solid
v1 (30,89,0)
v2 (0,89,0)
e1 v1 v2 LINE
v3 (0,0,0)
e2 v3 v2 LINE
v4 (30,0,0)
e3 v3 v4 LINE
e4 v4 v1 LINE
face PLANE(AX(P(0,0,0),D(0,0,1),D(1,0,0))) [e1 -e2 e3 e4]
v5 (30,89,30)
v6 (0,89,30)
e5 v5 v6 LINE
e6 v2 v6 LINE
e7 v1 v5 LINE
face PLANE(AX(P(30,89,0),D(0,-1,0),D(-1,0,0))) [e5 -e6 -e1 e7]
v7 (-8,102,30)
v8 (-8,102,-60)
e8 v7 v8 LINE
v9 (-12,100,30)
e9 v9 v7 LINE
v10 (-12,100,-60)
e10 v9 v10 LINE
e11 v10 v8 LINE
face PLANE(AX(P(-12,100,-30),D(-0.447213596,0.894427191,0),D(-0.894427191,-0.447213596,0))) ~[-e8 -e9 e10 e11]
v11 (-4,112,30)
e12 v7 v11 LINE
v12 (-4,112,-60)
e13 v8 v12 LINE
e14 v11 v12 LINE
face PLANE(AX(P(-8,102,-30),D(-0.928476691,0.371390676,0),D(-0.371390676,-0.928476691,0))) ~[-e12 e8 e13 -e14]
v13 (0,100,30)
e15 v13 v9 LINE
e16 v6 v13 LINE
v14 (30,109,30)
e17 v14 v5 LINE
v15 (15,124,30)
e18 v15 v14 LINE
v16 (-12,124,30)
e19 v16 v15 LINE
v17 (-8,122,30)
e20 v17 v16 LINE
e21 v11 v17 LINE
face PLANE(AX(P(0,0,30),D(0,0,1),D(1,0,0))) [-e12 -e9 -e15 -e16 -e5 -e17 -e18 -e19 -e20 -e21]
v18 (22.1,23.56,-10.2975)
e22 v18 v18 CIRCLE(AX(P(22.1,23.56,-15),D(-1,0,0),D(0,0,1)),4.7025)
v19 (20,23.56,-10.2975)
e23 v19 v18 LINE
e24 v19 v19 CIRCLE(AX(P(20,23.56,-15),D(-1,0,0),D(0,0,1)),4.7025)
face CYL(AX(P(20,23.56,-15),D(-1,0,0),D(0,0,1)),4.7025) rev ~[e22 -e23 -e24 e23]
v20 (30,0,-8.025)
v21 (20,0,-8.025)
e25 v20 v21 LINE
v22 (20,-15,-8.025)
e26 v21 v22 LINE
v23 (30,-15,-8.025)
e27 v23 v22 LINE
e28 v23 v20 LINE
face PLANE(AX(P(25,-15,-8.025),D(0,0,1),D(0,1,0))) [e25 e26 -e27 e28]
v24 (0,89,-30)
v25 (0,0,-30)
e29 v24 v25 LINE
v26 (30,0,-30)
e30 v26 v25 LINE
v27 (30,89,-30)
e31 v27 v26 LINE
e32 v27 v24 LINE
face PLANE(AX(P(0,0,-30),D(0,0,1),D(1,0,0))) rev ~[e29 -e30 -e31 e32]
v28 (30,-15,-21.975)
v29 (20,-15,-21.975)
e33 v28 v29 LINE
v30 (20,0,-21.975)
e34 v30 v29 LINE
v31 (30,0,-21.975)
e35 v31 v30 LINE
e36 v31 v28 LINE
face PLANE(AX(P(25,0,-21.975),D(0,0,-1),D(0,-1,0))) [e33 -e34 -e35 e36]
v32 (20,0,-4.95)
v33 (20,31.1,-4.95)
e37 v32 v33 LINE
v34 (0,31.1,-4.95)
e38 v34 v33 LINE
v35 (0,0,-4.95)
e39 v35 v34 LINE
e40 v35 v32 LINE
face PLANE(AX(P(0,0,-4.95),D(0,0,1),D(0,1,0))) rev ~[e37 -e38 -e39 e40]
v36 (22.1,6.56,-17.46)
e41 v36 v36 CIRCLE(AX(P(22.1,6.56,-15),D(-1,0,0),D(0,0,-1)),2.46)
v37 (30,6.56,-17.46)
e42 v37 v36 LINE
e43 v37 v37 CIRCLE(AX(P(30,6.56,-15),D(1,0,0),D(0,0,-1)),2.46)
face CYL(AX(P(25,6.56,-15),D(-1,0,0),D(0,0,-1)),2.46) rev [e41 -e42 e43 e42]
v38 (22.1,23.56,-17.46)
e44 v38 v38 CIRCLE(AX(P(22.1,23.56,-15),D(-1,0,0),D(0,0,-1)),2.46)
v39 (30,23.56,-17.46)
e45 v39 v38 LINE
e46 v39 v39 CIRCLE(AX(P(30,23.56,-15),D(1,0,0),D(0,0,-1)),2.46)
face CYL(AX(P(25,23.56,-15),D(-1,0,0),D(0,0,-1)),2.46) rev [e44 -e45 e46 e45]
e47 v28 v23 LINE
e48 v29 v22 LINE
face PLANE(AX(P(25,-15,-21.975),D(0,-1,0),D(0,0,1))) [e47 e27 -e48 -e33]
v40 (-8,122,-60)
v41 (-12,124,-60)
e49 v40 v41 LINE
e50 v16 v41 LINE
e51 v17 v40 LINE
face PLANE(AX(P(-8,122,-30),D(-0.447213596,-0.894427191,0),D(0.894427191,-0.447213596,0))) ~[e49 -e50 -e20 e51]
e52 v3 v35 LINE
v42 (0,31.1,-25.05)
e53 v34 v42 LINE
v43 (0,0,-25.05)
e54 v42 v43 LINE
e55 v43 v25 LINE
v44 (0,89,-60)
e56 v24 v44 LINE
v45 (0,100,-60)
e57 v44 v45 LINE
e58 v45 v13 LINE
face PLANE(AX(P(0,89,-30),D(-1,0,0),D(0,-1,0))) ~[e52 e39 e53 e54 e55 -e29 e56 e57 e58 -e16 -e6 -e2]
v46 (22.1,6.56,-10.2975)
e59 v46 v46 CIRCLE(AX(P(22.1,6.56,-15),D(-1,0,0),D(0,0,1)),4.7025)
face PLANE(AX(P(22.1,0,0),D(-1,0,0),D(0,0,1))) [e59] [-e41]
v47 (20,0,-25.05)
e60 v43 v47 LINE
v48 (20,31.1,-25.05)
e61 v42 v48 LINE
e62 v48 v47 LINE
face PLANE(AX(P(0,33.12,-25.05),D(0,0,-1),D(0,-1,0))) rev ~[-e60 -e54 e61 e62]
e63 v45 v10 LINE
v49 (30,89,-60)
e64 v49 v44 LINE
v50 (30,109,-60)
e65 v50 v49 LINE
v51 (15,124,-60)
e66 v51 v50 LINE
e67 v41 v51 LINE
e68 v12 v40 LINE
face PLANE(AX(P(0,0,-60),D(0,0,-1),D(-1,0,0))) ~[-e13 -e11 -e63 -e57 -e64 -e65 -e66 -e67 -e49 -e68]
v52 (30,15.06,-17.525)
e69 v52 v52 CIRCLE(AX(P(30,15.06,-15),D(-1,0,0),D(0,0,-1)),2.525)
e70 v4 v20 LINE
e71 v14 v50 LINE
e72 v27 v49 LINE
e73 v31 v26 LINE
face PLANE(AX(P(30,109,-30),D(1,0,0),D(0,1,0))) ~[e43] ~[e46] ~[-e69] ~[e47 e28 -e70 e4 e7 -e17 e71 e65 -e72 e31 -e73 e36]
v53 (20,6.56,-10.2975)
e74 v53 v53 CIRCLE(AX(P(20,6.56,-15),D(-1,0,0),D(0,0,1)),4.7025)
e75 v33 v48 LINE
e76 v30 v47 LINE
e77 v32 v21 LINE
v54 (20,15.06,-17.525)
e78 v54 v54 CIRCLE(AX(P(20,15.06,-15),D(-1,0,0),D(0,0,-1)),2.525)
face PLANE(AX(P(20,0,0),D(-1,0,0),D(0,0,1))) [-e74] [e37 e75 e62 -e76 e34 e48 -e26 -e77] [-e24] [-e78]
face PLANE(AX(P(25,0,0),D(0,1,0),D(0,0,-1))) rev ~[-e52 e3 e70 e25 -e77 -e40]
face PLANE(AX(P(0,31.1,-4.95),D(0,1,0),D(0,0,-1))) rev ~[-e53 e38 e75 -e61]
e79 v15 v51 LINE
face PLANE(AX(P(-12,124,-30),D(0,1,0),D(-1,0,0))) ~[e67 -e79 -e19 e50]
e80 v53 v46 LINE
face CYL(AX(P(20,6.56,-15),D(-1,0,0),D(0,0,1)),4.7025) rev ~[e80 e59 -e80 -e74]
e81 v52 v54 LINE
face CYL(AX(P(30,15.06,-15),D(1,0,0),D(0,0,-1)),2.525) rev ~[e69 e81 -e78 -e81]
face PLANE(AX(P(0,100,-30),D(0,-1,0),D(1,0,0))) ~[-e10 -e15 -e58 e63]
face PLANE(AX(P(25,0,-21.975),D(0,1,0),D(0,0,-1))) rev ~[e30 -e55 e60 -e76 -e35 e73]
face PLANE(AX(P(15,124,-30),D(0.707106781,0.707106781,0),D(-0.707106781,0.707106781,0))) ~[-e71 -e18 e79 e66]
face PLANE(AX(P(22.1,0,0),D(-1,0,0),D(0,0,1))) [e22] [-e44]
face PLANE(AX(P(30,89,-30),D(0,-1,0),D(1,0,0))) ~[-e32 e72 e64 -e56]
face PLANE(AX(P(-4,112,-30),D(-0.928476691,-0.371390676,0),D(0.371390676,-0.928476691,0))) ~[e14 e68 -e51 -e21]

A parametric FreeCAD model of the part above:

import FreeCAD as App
import Part
import Sketcher

V = App.Vector
Q = App.Units.Quantity

doc = App.newDocument("Part")
body = doc.addObject("PartDesign::Body", "Body")

sketch1 = doc.addObject("Sketcher::SketchObject", "Sketch")
body.addObject(sketch1)
sketch1.AttachmentSupport = (doc.XY_Plane, [""])
sketch1.MapMode = "FlatFace"
sketch1.addGeometry([
    Part.LineSegment(V(0, 40, 0), V(0, 0, 0)),
    Part.LineSegment(V(0, 0, 0), V(25, 0, 0)),
    Part.LineSegment(V(25, 0, 0), V(25, 40, 0)),
    Part.LineSegment(V(25, 40, 0), V(0, 40, 0)),
], False)
sketch1.addConstraint([
    Sketcher.Constraint("Coincident", 0, 2, 1, 1),
    Sketcher.Constraint("Coincident", 1, 2, 2, 1),
    Sketcher.Constraint("Coincident", 2, 2, 3, 1),
    Sketcher.Constraint("Coincident", 3, 2, 0, 1),
    Sketcher.Constraint("Vertical", 0),
    Sketcher.Constraint("Horizontal", 1),
    Sketcher.Constraint("Vertical", 2),
    Sketcher.Constraint("Horizontal", 3),
    Sketcher.Constraint("Coincident", 0, 2, -1, 1),
    Sketcher.Constraint("DistanceX", 1, 1, 1, 2, 25.0),
    Sketcher.Constraint("DistanceY", 0, 2, 0, 1, 40.0),
])
pad1 = doc.addObject("PartDesign::Pad", "Pad")
body.addObject(pad1)
pad1.Profile = sketch1
pad1.Length = 30
pad1.Reversed = True

sketch2 = doc.addObject("Sketcher::SketchObject", "Sketch001")
body.addObject(sketch2)
sketch2.AttachmentSupport = (doc.YZ_Plane, [""])
sketch2.MapMode = "FlatFace"
sketch2.AttachmentOffset = App.Placement(V(0, 0, 25), App.Rotation())
sketch2.addGeometry(Part.Circle(V(6.6, -15, 0), V(0, 0, 1), 2.5), False)
sketch2.addConstraint([
    Sketcher.Constraint("Diameter", 0, 4.92),
    Sketcher.Constraint("DistanceY", 0, 3, -1, 1, 15.0),
    Sketcher.Constraint("DistanceX", -1, 1, 0, 3, 6.56),
])
pocket1 = doc.addObject("PartDesign::Pocket", "Pocket")
body.addObject(pocket1)
pocket1.Profile = sketch2
pocket1.Length = 30

sketch3 = doc.addObject("Sketcher::SketchObject", "Sketch002")
body.addObject(sketch3)
sketch3.AttachmentSupport = (doc.YZ_Plane, [""])
sketch3.MapMode = "FlatFace"
sketch3.addGeometry([
    Part.LineSegment(V(0, -25, 0), V(0, -5, 0)),
    Part.LineSegment(V(0, -5, 0), V(33, -5, 0)),
    Part.LineSegment(V(33, -5, 0), V(33, -25, 0)),
    Part.LineSegment(V(33, -25, 0), V(0, -25, 0)),
], False)
sketch3.addConstraint([
    Sketcher.Constraint("Coincident", 0, 2, 1, 1),
    Sketcher.Constraint("Coincident", 1, 2, 2, 1),
    Sketcher.Constraint("Coincident", 2, 2, 3, 1),
    Sketcher.Constraint("Coincident", 3, 2, 0, 1),
    Sketcher.Constraint("Vertical", 0),
    Sketcher.Constraint("Horizontal", 1),
    Sketcher.Constraint("Vertical", 2),
    Sketcher.Constraint("Horizontal", 3),
    Sketcher.Constraint("PointOnObject", 0, 2, -2),
    Sketcher.Constraint("DistanceY", 0, 1, 0, 2, 20.1),
    Sketcher.Constraint("DistanceX", 1, 1, 1, 2, 33.12),
    Sketcher.Constraint("DistanceY", 0, 2, -1, 1, 4.95),
])
pocket2 = doc.addObject("PartDesign::Pocket", "Pocket001")
body.addObject(pocket2)
pocket2.Profile = sketch3
pocket2.Length = 20
pocket2.Reversed = True

sketch4 = doc.addObject("Sketcher::SketchObject", "Sketch003")
body.addObject(sketch4)
sketch4.AttachmentSupport = (doc.XZ_Plane, [""])
sketch4.MapMode = "FlatFace"
sketch4.addGeometry([
    Part.LineSegment(V(25, -8, 0), V(20, -8, 0)),
    Part.LineSegment(V(20, -8, 0), V(20, -22, 0)),
    Part.LineSegment(V(20, -22, 0), V(25, -22, 0)),
    Part.LineSegment(V(25, -22, 0), V(25, -8, 0)),
], False)
sketch4.addConstraint([
    Sketcher.Constraint("Coincident", 0, 2, 1, 1),
    Sketcher.Constraint("Coincident", 1, 2, 2, 1),
    Sketcher.Constraint("Coincident", 2, 2, 3, 1),
    Sketcher.Constraint("Coincident", 3, 2, 0, 1),
    Sketcher.Constraint("Horizontal", 0),
    Sketcher.Constraint("Vertical", 1),
    Sketcher.Constraint("Horizontal", 2),
    Sketcher.Constraint("Vertical", 3),
    Sketcher.Constraint("DistanceY", 1, 2, 1, 1, 13.95),
    Sketcher.Constraint("DistanceX", 0, 2, 0, 1, 5.0),
    Sketcher.Constraint("DistanceX", -1, 1, 0, 2, 20.0),
    Sketcher.Constraint("DistanceY", 0, 2, -1, 1, 8.025),
])
pad2 = doc.addObject("PartDesign::Pad", "Pad001")
body.addObject(pad2)
pad2.Profile = sketch4
pad2.Length = 15

sketch5 = doc.addObject("Sketcher::SketchObject", "Sketch004")
body.addObject(sketch5)
sketch5.AttachmentSupport = (doc.YZ_Plane, [""])
sketch5.MapMode = "FlatFace"
sketch5.AttachmentOffset = App.Placement(V(0, 0, 20), App.Rotation())
sketch5.addGeometry([
    Part.Circle(V(6.6, -15, 0), V(0, 0, 1), 4.7),
    Part.Circle(V(6.6, -15, 0), V(0, 0, 1), 2.5),
], False)
sketch5.addConstraint([
    Sketcher.Constraint("Coincident", 1, 3, 0, 3),
    Sketcher.Constraint("Diameter", 0, 9.405),
    Sketcher.Constraint("Diameter", 1, 4.92),
    Sketcher.Constraint("DistanceY", 0, 3, -1, 1, 15.0),
    Sketcher.Constraint("DistanceX", -1, 1, 0, 3, 6.56),
])
pocket3 = doc.addObject("PartDesign::Pocket", "Pocket002")
body.addObject(pocket3)
pocket3.Profile = sketch5
pocket3.Length = 2.1
pocket3.Reversed = True

sketch6 = doc.addObject("Sketcher::SketchObject", "Sketch005")
body.addObject(sketch6)
sketch6.AttachmentSupport = (doc.YZ_Plane, [""])
sketch6.MapMode = "FlatFace"
sketch6.AttachmentOffset = App.Placement(V(0, 0, 25), App.Rotation())
sketch6.addGeometry(Part.Circle(V(23.6, -15, 0), V(0, 0, 1), 2.5), False)
sketch6.addConstraint([
    Sketcher.Constraint("Diameter", 0, 4.92),
    Sketcher.Constraint("DistanceY", 0, 3, -1, 1, 15.0),
    Sketcher.Constraint("DistanceX", -1, 1, 0, 3, 23.56),
])
pocket4 = doc.addObject("PartDesign::Pocket", "Pocket003")
body.addObject(pocket4)
pocket4.Profile = sketch6
pocket4.Length = 10

sketch7 = doc.addObject("Sketcher::SketchObject", "Sketch006")
body.addObject(sketch7)
sketch7.AttachmentSupport = (doc.YZ_Plane, [""])
sketch7.MapMode = "FlatFace"
sketch7.AttachmentOffset = App.Placement(V(0, 0, 20), App.Rotation())
sketch7.addGeometry([
    Part.Circle(V(23.6, -15, 0), V(0, 0, 1), 4.7),
    Part.Circle(V(23.6, -15, 0), V(0, 0, 1), 2.5),
], False)
sketch7.addConstraint([
    Sketcher.Constraint("Coincident", 1, 3, 0, 3),
    Sketcher.Constraint("Diameter", 0, 9.405),
    Sketcher.Constraint("Diameter", 1, 4.92),
    Sketcher.Constraint("DistanceY", 0, 3, -1, 1, 15.0),
    Sketcher.Constraint("DistanceX", -1, 1, 0, 3, 23.56),
])
pocket5 = doc.addObject("PartDesign::Pocket", "Pocket004")
body.addObject(pocket5)
pocket5.Profile = sketch7
pocket5.Length = 2.1
pocket5.Reversed = True

sketch8 = doc.addObject("Sketcher::SketchObject", "Sketch007")
body.addObject(sketch8)
sketch8.AttachmentSupport = (doc.YZ_Plane, [""])
sketch8.MapMode = "FlatFace"
sketch8.AttachmentOffset = App.Placement(V(0, 0, 25), App.Rotation())
sketch8.addGeometry([
    Part.LineSegment(V(0, -30, 0), V(40, -30, 0)),
    Part.LineSegment(V(40, -30, 0), V(40, 0, 0)),
    Part.LineSegment(V(40, 0, 0), V(0, 0, 0)),
    Part.LineSegment(V(0, 0, 0), V(0, -8, 0)),
    Part.LineSegment(V(0, -8, 0), V(-15, -8, 0)),
    Part.LineSegment(V(-15, -8, 0), V(-15, -22, 0)),
    Part.LineSegment(V(-15, -22, 0), V(0, -22, 0)),
    Part.LineSegment(V(0, -22, 0), V(0, -30, 0)),
    Part.Circle(V(6.6, -15, 0), V(0, 0, 1), 2.5),
    Part.Circle(V(23.6, -15, 0), V(0, 0, 1), 2.5),
], False)
sketch8.addConstraint([
    Sketcher.Constraint("Coincident", 0, 2, 1, 1),
    Sketcher.Constraint("Coincident", 1, 2, 2, 1),
    Sketcher.Constraint("Coincident", 2, 2, 3, 1),
    Sketcher.Constraint("Coincident", 3, 2, 4, 1),
    Sketcher.Constraint("Coincident", 4, 2, 5, 1),
    Sketcher.Constraint("Coincident", 5, 2, 6, 1),
    Sketcher.Constraint("Coincident", 6, 2, 7, 1),
    Sketcher.Constraint("Coincident", 7, 2, 0, 1),
    Sketcher.Constraint("Horizontal", 0),
    Sketcher.Constraint("Vertical", 1),
    Sketcher.Constraint("Horizontal", 2),
    Sketcher.Constraint("Vertical", 3),
    Sketcher.Constraint("Horizontal", 4),
    Sketcher.Constraint("Vertical", 5),
    Sketcher.Constraint("Horizontal", 6),
    Sketcher.Constraint("Vertical", 7),
    Sketcher.Constraint("Coincident", 2, 2, -1, 1),
    Sketcher.Constraint("Equal", 8, 9),
    Sketcher.Constraint("PointOnObject", 6, 2, -2),
    Sketcher.Constraint("Horizontal", 8, 3, 9, 3),
    Sketcher.Constraint("Equal", 3, 7),
    Sketcher.Constraint("Diameter", 8, 4.92),
    Sketcher.Constraint("DistanceX", 0, 1, 0, 2, 40.0),
    Sketcher.Constraint("DistanceX", 4, 2, 4, 1, 15.0),
    Sketcher.Constraint("DistanceY", 1, 1, 1, 2, 30.0),
    Sketcher.Constraint("DistanceY", 8, 3, -1, 1, 15.0),
    Sketcher.Constraint("DistanceX", 8, 3, 9, 3, 17.0),
    Sketcher.Constraint("DistanceY", 5, 2, 5, 1, 13.95),
    Sketcher.Constraint("DistanceX", -1, 1, 8, 3, 6.56),
])
pad3 = doc.addObject("PartDesign::Pad", "Pad002")
body.addObject(pad3)
pad3.Profile = sketch8
pad3.Length = 5

sketch9 = doc.addObject("Sketcher::SketchObject", "Sketch008")
body.addObject(sketch9)
sketch9.AttachmentSupport = (doc.XZ_Plane, [""])
sketch9.MapMode = "FlatFace"
sketch9.AttachmentOffset = App.Placement(V(0, 0, -40), App.Rotation())
sketch9.addGeometry([
    Part.LineSegment(V(30, -30, 0), V(0, -30, 0)),
    Part.LineSegment(V(0, -30, 0), V(0, 0, 0)),
    Part.LineSegment(V(0, 0, 0), V(30, 0, 0)),
    Part.LineSegment(V(30, 0, 0), V(30, -30, 0)),
], False)
sketch9.addConstraint([
    Sketcher.Constraint("Coincident", 0, 2, 1, 1),
    Sketcher.Constraint("Coincident", 1, 2, 2, 1),
    Sketcher.Constraint("Coincident", 2, 2, 3, 1),
    Sketcher.Constraint("Coincident", 3, 2, 0, 1),
    Sketcher.Constraint("Horizontal", 0),
    Sketcher.Constraint("Vertical", 1),
    Sketcher.Constraint("Horizontal", 2),
    Sketcher.Constraint("Vertical", 3),
    Sketcher.Constraint("Coincident", 1, 2, -1, 1),
    Sketcher.Constraint("Equal", 2, 1),
    Sketcher.Constraint("DistanceX", 0, 2, 0, 1, 30.0),
])
pad4 = doc.addObject("PartDesign::Pad", "Pad003")
body.addObject(pad4)
pad4.Profile = sketch9
pad4.Length = 30
pad4.Reversed = True

sketch10 = doc.addObject("Sketcher::SketchObject", "Sketch009")
body.addObject(sketch10)
sketch10.AttachmentSupport = (doc.YZ_Plane, [""])
sketch10.MapMode = "FlatFace"
sketch10.AttachmentOffset = App.Placement(V(0, 0, 30), App.Rotation())
sketch10.addGeometry(Part.Circle(V(15.1, -15, 0), V(0, 0, 1), 2.5), False)
sketch10.addConstraint([
    Sketcher.Constraint("Diameter", 0, 5.05),
    Sketcher.Constraint("DistanceY", 0, 3, -1, 1, 15.0),
    Sketcher.Constraint("DistanceX", -1, 1, 0, 3, 15.06),
])
pocket6 = doc.addObject("PartDesign::Pocket", "Pocket005")
body.addObject(pocket6)
pocket6.Profile = sketch10
pocket6.Length = 30

sketch11 = doc.addObject("Sketcher::SketchObject", "Sketch010")
body.addObject(sketch11)
sketch11.AttachmentSupport = (doc.XY_Plane, [""])
sketch11.MapMode = "FlatFace"
sketch11.addGeometry([
    Part.LineSegment(V(0, 70, 0), V(30, 70, 0)),
    Part.LineSegment(V(30, 70, 0), V(30, 109, 0)),
    Part.LineSegment(V(30, 109, 0), V(15, 124, 0)),
    Part.LineSegment(V(15, 124, 0), V(-12, 124, 0)),
    Part.LineSegment(V(-12, 124, 0), V(-8, 122, 0)),
    Part.LineSegment(V(-8, 122, 0), V(-4, 112, 0)),
    Part.LineSegment(V(-4, 112, 0), V(-8, 102, 0)),
    Part.LineSegment(V(-8, 102, 0), V(-12, 100, 0)),
    Part.LineSegment(V(-12, 100, 0), V(0, 100, 0)),
    Part.LineSegment(V(0, 100, 0), V(0, 70, 0)),
], False)
sketch11.addConstraint([
    Sketcher.Constraint("Coincident", 0, 2, 1, 1),
    Sketcher.Constraint("Coincident", 1, 2, 2, 1),
    Sketcher.Constraint("Coincident", 2, 2, 3, 1),
    Sketcher.Constraint("Coincident", 3, 2, 4, 1),
    Sketcher.Constraint("Coincident", 4, 2, 5, 1),
    Sketcher.Constraint("Coincident", 5, 2, 6, 1),
    Sketcher.Constraint("Coincident", 6, 2, 7, 1),
    Sketcher.Constraint("Coincident", 7, 2, 8, 1),
    Sketcher.Constraint("Coincident", 8, 2, 9, 1),
    Sketcher.Constraint("Coincident", 9, 2, 0, 1),
    Sketcher.Constraint("Horizontal", 0),
    Sketcher.Constraint("Vertical", 1),
    Sketcher.Constraint("Horizontal", 3),
    Sketcher.Constraint("Horizontal", 8),
    Sketcher.Constraint("Vertical", 9),
    Sketcher.Constraint("PointOnObject", 8, 2, -2),
    Sketcher.Constraint("Vertical", 4, 2, 6, 2),
    Sketcher.Constraint("Vertical", 3, 2, 7, 2),
    Sketcher.Constraint("Equal", 0, 9),
    Sketcher.Constraint("Equal", 5, 6),
    Sketcher.Constraint("Equal", 4, 7),
    Sketcher.Constraint("DistanceX", 8, 1, 8, 2, 12.0),
    Sketcher.Constraint("DistanceY", 5, 2, 3, 2, 12.0),
    Sketcher.Constraint("DistanceX", 0, 1, 0, 2, 30.0),
    Sketcher.Constraint("DistanceX", 3, 2, 3, 1, 27.0),
    Sketcher.Constraint("DistanceY", 1, 1, 1, 2, 39.0),
    Sketcher.Constraint("DistanceY", -1, 1, 0, 2, 70.0),
    Sketcher.Constraint("DistanceX", 4, 2, -1, 1, 8.0),
    Sketcher.Constraint("DistanceY", -1, 1, 4, 2, 122.0),
    Sketcher.Constraint("DistanceX", 5, 2, -1, 1, 4.0),
])
pad5 = doc.addObject("PartDesign::Pad", "Pad004")
body.addObject(pad5)
pad5.Profile = sketch11
pad5.Length = 30
pad5.Reversed = True

sketch12 = doc.addObject("Sketcher::SketchObject", "Sketch011")
body.addObject(sketch12)
sketch12.AttachmentSupport = (doc.YZ_Plane, [""])
sketch12.MapMode = "FlatFace"
sketch12.addGeometry([
    Part.LineSegment(V(33.1, -5, 0), V(33.1, -25.1, 0)),
    Part.LineSegment(V(33.1, -25.1, 0), V(31.1, -25.1, 0)),
    Part.LineSegment(V(31.1, -25.1, 0), V(31.1, -5, 0)),
    Part.LineSegment(V(31.1, -5, 0), V(33.1, -5, 0)),
], False)
sketch12.addConstraint([
    Sketcher.Constraint("Coincident", 0, 2, 1, 1),
    Sketcher.Constraint("Coincident", 1, 2, 2, 1),
    Sketcher.Constraint("Coincident", 2, 2, 3, 1),
    Sketcher.Constraint("Coincident", 3, 2, 0, 1),
    Sketcher.Constraint("Vertical", 0),
    Sketcher.Constraint("Horizontal", 1),
    Sketcher.Constraint("Vertical", 2),
    Sketcher.Constraint("Horizontal", 3),
    Sketcher.Constraint("DistanceX", 1, 2, 1, 1, 2.02),
    Sketcher.Constraint("DistanceY", 0, 2, 0, 1, 20.1),
    Sketcher.Constraint("DistanceX", -1, 1, 1, 2, 31.1),
    Sketcher.Constraint("DistanceY", 0, 2, -1, 1, 25.05),
])
pad6 = doc.addObject("PartDesign::Pad", "Pad005")
body.addObject(pad6)
pad6.Profile = sketch12
pad6.Length = 20

sketch13 = doc.addObject("Sketcher::SketchObject", "Sketch012")
body.addObject(sketch13)
sketch13.AttachmentSupport = (doc.XY_Plane, [""])
sketch13.MapMode = "FlatFace"
sketch13.addGeometry([
    Part.LineSegment(V(-12, 100, 0), V(0, 100, 0)),
    Part.LineSegment(V(0, 100, 0), V(0, 89, 0)),
    Part.LineSegment(V(0, 89, 0), V(30, 89, 0)),
    Part.LineSegment(V(30, 89, 0), V(30, 109, 0)),
    Part.LineSegment(V(30, 109, 0), V(15, 124, 0)),
    Part.LineSegment(V(15, 124, 0), V(-12, 124, 0)),
    Part.LineSegment(V(-12, 124, 0), V(-8, 122, 0)),
    Part.LineSegment(V(-8, 122, 0), V(-4, 112, 0)),
    Part.LineSegment(V(-4, 112, 0), V(-8, 102, 0)),
    Part.LineSegment(V(-8, 102, 0), V(-12, 100, 0)),
], False)
sketch13.addConstraint([
    Sketcher.Constraint("Coincident", 0, 2, 1, 1),
    Sketcher.Constraint("Coincident", 1, 2, 2, 1),
    Sketcher.Constraint("Coincident", 2, 2, 3, 1),
    Sketcher.Constraint("Coincident", 3, 2, 4, 1),
    Sketcher.Constraint("Coincident", 4, 2, 5, 1),
    Sketcher.Constraint("Coincident", 5, 2, 6, 1),
    Sketcher.Constraint("Coincident", 6, 2, 7, 1),
    Sketcher.Constraint("Coincident", 7, 2, 8, 1),
    Sketcher.Constraint("Coincident", 8, 2, 9, 1),
    Sketcher.Constraint("Coincident", 9, 2, 0, 1),
    Sketcher.Constraint("Horizontal", 0),
    Sketcher.Constraint("Vertical", 1),
    Sketcher.Constraint("Horizontal", 2),
    Sketcher.Constraint("Vertical", 3),
    Sketcher.Constraint("Horizontal", 5),
    Sketcher.Constraint("PointOnObject", 0, 2, -2),
    Sketcher.Constraint("Vertical", 6, 2, 8, 2),
    Sketcher.Constraint("Vertical", 5, 2, 9, 2),
    Sketcher.Constraint("Equal", 7, 8),
    Sketcher.Constraint("Equal", 6, 9),
    Sketcher.Constraint("DistanceX", 2, 1, 2, 2, 30.0),
    Sketcher.Constraint("DistanceY", 3, 1, 3, 2, 20.0),
    Sketcher.Constraint("DistanceY", 8, 2, 6, 2, 20.0),
    Sketcher.Constraint("DistanceX", 0, 1, 0, 2, 12.0),
    Sketcher.Constraint("DistanceX", 5, 2, 5, 1, 27.0),
    Sketcher.Constraint("DistanceY", 1, 2, 1, 1, 11.0),
    Sketcher.Constraint("Angle", 4, Q("135 deg")),
    Sketcher.Constraint("DistanceY", -1, 1, 0, 2, 100.0),
    Sketcher.Constraint("DistanceX", 6, 2, -1, 1, 8.0),
    Sketcher.Constraint("DistanceX", 7, 2, -1, 1, 4.0),
])
pad7 = doc.addObject("PartDesign::Pad", "Pad006")
body.addObject(pad7)
pad7.Profile = sketch13
pad7.Length = 30
doc.recompute()

datumplane = doc.addObject("PartDesign::Plane", "DatumPlane")
body.addObject(datumplane)
datumplane.AttachmentSupport = (doc.XY_Plane, [""])
datumplane.MapMode = "FlatFace"
datumplane.AttachmentOffset = App.Placement(V(0, 0, -15), App.Rotation())
mirrored = doc.addObject("PartDesign::Mirrored", "Mirrored")
body.addObject(mirrored)
mirrored.Originals = [pad7]
mirrored.MirrorPlane = (datumplane, [""])
body.Tip = mirrored

doc.recompute()
